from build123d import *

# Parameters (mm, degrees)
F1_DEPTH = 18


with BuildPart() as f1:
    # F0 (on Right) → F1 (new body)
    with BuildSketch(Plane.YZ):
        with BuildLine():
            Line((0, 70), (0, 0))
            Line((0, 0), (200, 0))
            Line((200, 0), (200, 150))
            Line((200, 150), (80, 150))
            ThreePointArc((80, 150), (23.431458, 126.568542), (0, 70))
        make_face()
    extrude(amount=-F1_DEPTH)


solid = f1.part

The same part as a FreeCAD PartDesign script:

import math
import FreeCAD as App
import Part
import Sketcher
Q = App.Units.Quantity

doc = App.newDocument("Part")
body = doc.addObject("PartDesign::Body", "Body")

sketch1 = body.newObject("Sketcher::SketchObject", "Sketch")
sketch1.AttachmentSupport = (doc.getObject("YZ_Plane"), [""])
sketch1.MapMode = "FlatFace"
sketch1.addGeometry(Part.LineSegment(App.Vector(0, 70, 0), App.Vector(0, 0, 0)), False)
sketch1.addGeometry(Part.LineSegment(App.Vector(0, 0, 0), App.Vector(200, 0, 0)), False)
sketch1.addGeometry(Part.LineSegment(App.Vector(200, 0, 0), App.Vector(200, 150, 0)), False)
sketch1.addGeometry(Part.LineSegment(App.Vector(200, 150, 0), App.Vector(80, 150, 0)), False)
sketch1.addGeometry(Part.ArcOfCircle(Part.Circle(App.Vector(80, 70, 0), App.Vector(0, 0, 1), 80), math.radians(90), math.radians(180)), False)
sketch1.addConstraint(Sketcher.Constraint("Coincident", 0, 2, 1, 1))
sketch1.addConstraint(Sketcher.Constraint("Coincident", 1, 2, 2, 1))
sketch1.addConstraint(Sketcher.Constraint("Coincident", 2, 2, 3, 1))
sketch1.addConstraint(Sketcher.Constraint("Tangent", 3, 2, 4, 1))
sketch1.addConstraint(Sketcher.Constraint("Tangent", 4, 2, 0, 1))
sketch1.addConstraint(Sketcher.Constraint("Vertical", 0))
sketch1.addConstraint(Sketcher.Constraint("Horizontal", 1))
sketch1.addConstraint(Sketcher.Constraint("Vertical", 2))
sketch1.addConstraint(Sketcher.Constraint("Horizontal", 3))
sketch1.addConstraint(Sketcher.Constraint("Coincident", 0, 2, -1, 1))
sketch1.addConstraint(Sketcher.Constraint("Radius", 4, Q("80.000002 mm")))
sketch1.addConstraint(Sketcher.Constraint("DistanceX", 1, 1, 1, 2, Q("200 mm")))
sketch1.addConstraint(Sketcher.Constraint("DistanceY", 0, 2, 0, 1, Q("70 mm")))
pad1 = body.newObject("PartDesign::Pad", "Pad")
pad1.Profile = sketch1
pad1.Length = 18
pad1.Reversed = True

doc.recompute()
